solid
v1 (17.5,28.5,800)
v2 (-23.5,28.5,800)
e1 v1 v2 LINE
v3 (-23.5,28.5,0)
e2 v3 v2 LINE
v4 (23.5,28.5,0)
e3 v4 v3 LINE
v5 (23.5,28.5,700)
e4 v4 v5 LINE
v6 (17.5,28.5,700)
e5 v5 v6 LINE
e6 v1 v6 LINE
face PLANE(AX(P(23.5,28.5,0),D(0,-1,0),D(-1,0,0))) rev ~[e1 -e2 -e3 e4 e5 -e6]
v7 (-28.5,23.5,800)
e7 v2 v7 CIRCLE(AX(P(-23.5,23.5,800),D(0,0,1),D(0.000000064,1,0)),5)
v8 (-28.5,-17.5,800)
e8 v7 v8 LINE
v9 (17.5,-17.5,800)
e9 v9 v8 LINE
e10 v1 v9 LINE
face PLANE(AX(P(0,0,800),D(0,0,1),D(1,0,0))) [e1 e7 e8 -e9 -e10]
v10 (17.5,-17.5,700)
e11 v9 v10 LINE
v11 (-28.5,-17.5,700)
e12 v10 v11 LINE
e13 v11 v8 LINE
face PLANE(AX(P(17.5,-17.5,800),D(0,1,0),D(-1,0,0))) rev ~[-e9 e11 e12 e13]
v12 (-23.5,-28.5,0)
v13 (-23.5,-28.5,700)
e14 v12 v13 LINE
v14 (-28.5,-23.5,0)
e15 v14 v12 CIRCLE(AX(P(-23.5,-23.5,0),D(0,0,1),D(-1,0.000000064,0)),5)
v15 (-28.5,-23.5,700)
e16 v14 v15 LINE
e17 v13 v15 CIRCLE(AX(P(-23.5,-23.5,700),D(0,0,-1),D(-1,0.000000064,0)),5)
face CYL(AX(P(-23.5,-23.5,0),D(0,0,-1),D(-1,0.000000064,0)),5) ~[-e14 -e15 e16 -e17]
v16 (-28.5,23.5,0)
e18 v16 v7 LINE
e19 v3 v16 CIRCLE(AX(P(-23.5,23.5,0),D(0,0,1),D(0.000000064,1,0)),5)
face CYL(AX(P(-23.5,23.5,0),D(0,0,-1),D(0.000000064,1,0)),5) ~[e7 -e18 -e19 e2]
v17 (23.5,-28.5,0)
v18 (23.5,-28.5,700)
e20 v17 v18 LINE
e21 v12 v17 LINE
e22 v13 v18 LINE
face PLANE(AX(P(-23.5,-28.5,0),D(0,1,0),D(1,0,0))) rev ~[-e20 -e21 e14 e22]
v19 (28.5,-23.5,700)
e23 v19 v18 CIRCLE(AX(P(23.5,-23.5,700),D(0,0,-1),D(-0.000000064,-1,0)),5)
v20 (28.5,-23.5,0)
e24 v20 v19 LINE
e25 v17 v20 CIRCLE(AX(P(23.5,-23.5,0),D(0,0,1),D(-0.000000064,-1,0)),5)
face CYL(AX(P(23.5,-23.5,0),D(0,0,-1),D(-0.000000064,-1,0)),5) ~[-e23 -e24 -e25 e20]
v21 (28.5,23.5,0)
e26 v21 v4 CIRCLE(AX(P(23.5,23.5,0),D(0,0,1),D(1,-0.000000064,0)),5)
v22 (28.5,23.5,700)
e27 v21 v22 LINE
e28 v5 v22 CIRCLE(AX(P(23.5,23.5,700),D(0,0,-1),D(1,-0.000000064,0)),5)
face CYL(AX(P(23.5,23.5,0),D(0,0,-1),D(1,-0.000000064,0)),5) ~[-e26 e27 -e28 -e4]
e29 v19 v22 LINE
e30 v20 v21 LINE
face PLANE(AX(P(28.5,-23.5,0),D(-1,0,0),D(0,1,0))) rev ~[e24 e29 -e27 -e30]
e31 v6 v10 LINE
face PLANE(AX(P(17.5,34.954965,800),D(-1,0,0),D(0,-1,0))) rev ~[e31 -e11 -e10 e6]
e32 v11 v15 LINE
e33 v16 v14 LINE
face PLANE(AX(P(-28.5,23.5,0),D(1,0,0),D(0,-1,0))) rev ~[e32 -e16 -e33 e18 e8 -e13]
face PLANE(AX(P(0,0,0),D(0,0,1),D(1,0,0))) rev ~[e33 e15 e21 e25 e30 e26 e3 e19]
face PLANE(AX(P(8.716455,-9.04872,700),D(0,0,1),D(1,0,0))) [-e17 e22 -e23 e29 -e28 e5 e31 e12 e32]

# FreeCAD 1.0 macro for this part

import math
import FreeCAD as App
import Part
import Sketcher
Q = App.Units.Quantity

doc = App.newDocument("Part")
body = doc.addObject("PartDesign::Body", "Body")

# Sketch on XY plane
sketch1 = body.newObject("Sketcher::SketchObject", "Sketch")
sketch1.AttachmentSupport = (doc.getObject("XY_Plane"), [""])
sketch1.MapMode = "FlatFace"
sketch1.addGeometry([
    Part.LineSegment(App.Vector(23.5, 28.5, 0), App.Vector(-23.5, 28.5, 0)),  # 0
    Part.ArcOfCircle(Part.Circle(App.Vector(-23.5, 23.5, 0), App.Vector(0, 0, 1), 5), math.radians(90), math.radians(180)),  # 1
    Part.LineSegment(App.Vector(-28.5, 23.5, 0), App.Vector(-28.5, -23.5, 0)),  # 2
    Part.ArcOfCircle(Part.Circle(App.Vector(-23.5, -23.5, 0), App.Vector(0, 0, 1), 5), math.radians(180), math.radians(270)),  # 3
    Part.LineSegment(App.Vector(-23.5, -28.5, 0), App.Vector(23.5, -28.5, 0)),  # 4
    Part.ArcOfCircle(Part.Circle(App.Vector(23.5, -23.5, 0), App.Vector(0, 0, 1), 5), math.radians(-90), math.radians(0)),  # 5
    Part.LineSegment(App.Vector(28.5, -23.5, 0), App.Vector(28.5, 23.5, 0)),  # 6
    Part.ArcOfCircle(Part.Circle(App.Vector(23.5, 23.5, 0), App.Vector(0, 0, 1), 5), math.radians(0), math.radians(90)),  # 7
], False)
sketch1.addConstraint([
    Sketcher.Constraint("Tangent", 0, 2, 1, 1),
    Sketcher.Constraint("Tangent", 1, 2, 2, 1),
    Sketcher.Constraint("Tangent", 2, 2, 3, 1),
    Sketcher.Constraint("Tangent", 3, 2, 4, 1),
    Sketcher.Constraint("Tangent", 4, 2, 5, 1),
    Sketcher.Constraint("Tangent", 5, 2, 6, 1),
    Sketcher.Constraint("Tangent", 6, 2, 7, 1),
    Sketcher.Constraint("Tangent", 7, 2, 0, 1),
    Sketcher.Constraint("Horizontal", 0),
    Sketcher.Constraint("Vertical", 2),
    Sketcher.Constraint("Horizontal", 4),
    Sketcher.Constraint("Vertical", 6),
    Sketcher.Constraint("Equal", 1, 3),
    Sketcher.Constraint("Equal", 3, 5),
    Sketcher.Constraint("Equal", 5, 7),
    Sketcher.Constraint("Symmetric", 1, 3, 5, 3, -1, 1),
    Sketcher.Constraint("Equal", 4, 2),
    Sketcher.Constraint("Radius", 1, Q("5 mm")),
    Sketcher.Constraint("DistanceX", 0, 2, 0, 1, Q("47 mm")),
])
pad1 = body.newObject("PartDesign::Pad", "Pad")
pad1.Profile = sketch1
pad1.Length = 800

# Sketch on XY plane
sketch2 = body.newObject("Sketcher::SketchObject", "Sketch001")
sketch2.AttachmentSupport = (doc.getObject("XY_Plane"), [""])
sketch2.MapMode = "FlatFace"
sketch2.AttachmentOffset = App.Placement(App.Vector(0, 0, 800), App.Rotation())
sketch2.addGeometry([
    Part.LineSegment(App.Vector(-36, -18, 0), App.Vector(-36, -32, 0)),  # 0
    Part.LineSegment(App.Vector(-36, -32, 0), App.Vector(32, -32, 0)),  # 1
    Part.LineSegment(App.Vector(32, -32, 0), App.Vector(32, 35, 0)),  # 2
    Part.LineSegment(App.Vector(32, 35, 0), App.Vector(18, 35, 0)),  # 3
    Part.LineSegment(App.Vector(18, 35, 0), App.Vector(18, -18, 0)),  # 4
    Part.LineSegment(App.Vector(18, -18, 0), App.Vector(-36, -18, 0)),  # 5
], False)
sketch2.addConstraint([
    Sketcher.Constraint("Coincident", 0, 2, 1, 1),
    Sketcher.Constraint("Coincident", 1, 2, 2, 1),
    Sketcher.Constraint("Coincident", 2, 2, 3, 1),
    Sketcher.Constraint("Coincident", 3, 2, 4, 1),
    Sketcher.Constraint("Coincident", 4, 2, 5, 1),
    Sketcher.Constraint("Coincident", 5, 2, 0, 1),
    Sketcher.Constraint("Vertical", 0),
    Sketcher.Constraint("Horizontal", 1),
    Sketcher.Constraint("Vertical", 2),
    Sketcher.Constraint("Horizontal", 3),
    Sketcher.Constraint("Vertical", 4),
    Sketcher.Constraint("Horizontal", 5),
    Sketcher.Constraint("Equal", 3, 0),
    Sketcher.Constraint("DistanceX", 3, 2, 3, 1, Q("15 mm")),
    Sketcher.Constraint("DistanceY", 0, 2, -1, 1, Q("32.5 mm")),
    Sketcher.Constraint("DistanceX", -1, 1, 1, 2, Q("32.5 mm")),
    Sketcher.Constraint("DistanceX", 1, 1, 1, 2, Q("68.119496 mm")),
    Sketcher.Constraint("DistanceY", 2, 1, 2, 2, Q("67.454965 mm")),
])
pocket1 = body.newObject("PartDesign::Pocket", "Pocket")
pocket1.Profile = sketch2
pocket1.Length = 100

doc.recompute()
